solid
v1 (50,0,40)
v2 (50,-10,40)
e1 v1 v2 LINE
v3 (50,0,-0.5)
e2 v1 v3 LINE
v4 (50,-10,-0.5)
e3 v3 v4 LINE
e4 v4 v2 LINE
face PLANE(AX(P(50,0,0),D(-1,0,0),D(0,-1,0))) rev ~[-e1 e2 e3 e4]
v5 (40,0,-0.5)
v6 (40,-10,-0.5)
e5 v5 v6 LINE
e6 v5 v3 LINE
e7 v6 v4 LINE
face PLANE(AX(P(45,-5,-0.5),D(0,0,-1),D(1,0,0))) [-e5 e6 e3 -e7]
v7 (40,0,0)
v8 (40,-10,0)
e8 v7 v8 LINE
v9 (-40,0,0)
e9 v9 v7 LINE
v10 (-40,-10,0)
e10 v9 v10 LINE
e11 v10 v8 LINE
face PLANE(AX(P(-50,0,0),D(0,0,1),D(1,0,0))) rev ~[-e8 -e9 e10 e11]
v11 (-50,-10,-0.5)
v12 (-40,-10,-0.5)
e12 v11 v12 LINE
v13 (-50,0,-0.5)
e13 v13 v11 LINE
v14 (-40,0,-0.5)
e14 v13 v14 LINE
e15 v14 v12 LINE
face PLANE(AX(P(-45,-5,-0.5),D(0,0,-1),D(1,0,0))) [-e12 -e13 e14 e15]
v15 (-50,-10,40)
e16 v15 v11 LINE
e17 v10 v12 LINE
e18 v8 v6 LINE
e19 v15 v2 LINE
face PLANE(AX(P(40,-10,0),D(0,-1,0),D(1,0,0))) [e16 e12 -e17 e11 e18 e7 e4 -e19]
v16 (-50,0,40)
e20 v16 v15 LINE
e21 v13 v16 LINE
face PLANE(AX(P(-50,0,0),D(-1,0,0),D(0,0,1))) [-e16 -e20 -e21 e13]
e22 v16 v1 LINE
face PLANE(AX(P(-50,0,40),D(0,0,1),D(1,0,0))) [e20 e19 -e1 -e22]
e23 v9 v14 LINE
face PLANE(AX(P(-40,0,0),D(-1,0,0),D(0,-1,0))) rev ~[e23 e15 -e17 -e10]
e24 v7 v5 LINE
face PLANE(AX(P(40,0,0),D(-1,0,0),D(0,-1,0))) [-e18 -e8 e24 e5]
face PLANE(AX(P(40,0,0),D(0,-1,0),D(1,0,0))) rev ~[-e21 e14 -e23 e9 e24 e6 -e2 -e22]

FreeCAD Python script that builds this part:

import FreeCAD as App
import Part
import Sketcher
Q = App.Units.Quantity

doc = App.newDocument("Part")
params = doc.addObject("Spreadsheet::Sheet", "Params")
for row, (alias, value) in enumerate([
    ("sketch1_width", "100 mm"),
    ("sketch1_height", "40 mm"),
    ("pad1_length", "10 mm"),
    ("sketch2_width", "10 mm"),
    ("pad2_length", "0.5 mm"),
], start=1):
    params.set(f"A{row}", alias)
    params.set(f"B{row}", "=" + value)
    params.setAlias(f"B{row}", alias)

body = doc.addObject("PartDesign::Body", "Body")

# Sketch on XZ plane
sketch1 = body.newObject("Sketcher::SketchObject", "Sketch")
sketch1.AttachmentSupport = (doc.getObject("XZ_Plane"), [""])
sketch1.MapMode = "FlatFace"
sketch1.addGeometry([
    Part.LineSegment(App.Vector(-50, 40, 0), App.Vector(-50, 0, 0)),
    Part.LineSegment(App.Vector(-50, 0, 0), App.Vector(50, 0, 0)),
    Part.LineSegment(App.Vector(50, 0, 0), App.Vector(50, 40, 0)),
    Part.LineSegment(App.Vector(50, 40, 0), App.Vector(-50, 40, 0)),
], False)
sketch1.addConstraint([
    Sketcher.Constraint("Coincident", 0, 2, 1, 1),
    Sketcher.Constraint("Coincident", 1, 2, 2, 1),
    Sketcher.Constraint("Coincident", 2, 2, 3, 1),
    Sketcher.Constraint("Coincident", 3, 2, 0, 1),
    Sketcher.Constraint("Vertical", 0),
    Sketcher.Constraint("Horizontal", 1),
    Sketcher.Constraint("Vertical", 2),
    Sketcher.Constraint("Horizontal", 3),
    Sketcher.Constraint("Symmetric", 0, 2, 1, 2, -1, 1),
    Sketcher.Constraint("DistanceX", 1, 1, 1, 2, Q("100 mm")),
    Sketcher.Constraint("DistanceY", 0, 2, 0, 1, Q("40 mm")),
])
sketch1.setExpression("Constraints[9]", "Params.sketch1_width")
sketch1.setExpression("Constraints[10]", "Params.sketch1_height")
pad1 = body.newObject("PartDesign::Pad", "Pad")
pad1.Profile = sketch1
pad1.setExpression("Length", "Params.pad1_length")

# Sketch on XY plane
sketch2 = body.newObject("Sketcher::SketchObject", "Sketch001")
sketch2.AttachmentSupport = (doc.getObject("XY_Plane"), [""])
sketch2.MapMode = "FlatFace"
sketch2.addGeometry([
    Part.LineSegment(App.Vector(40, -10, 0), App.Vector(40, 0, 0)),  # 0
    Part.LineSegment(App.Vector(40, 0, 0), App.Vector(50, 0, 0)),  # 1
    Part.LineSegment(App.Vector(50, 0, 0), App.Vector(50, -10, 0)),  # 2
    Part.LineSegment(App.Vector(50, -10, 0), App.Vector(40, -10, 0)),  # 3
    Part.LineSegment(App.Vector(-50, -10, 0), App.Vector(-50, 0, 0)),  # 4
    Part.LineSegment(App.Vector(-50, 0, 0), App.Vector(-40, 0, 0)),  # 5
    Part.LineSegment(App.Vector(-40, 0, 0), App.Vector(-40, -10, 0)),  # 6
    Part.LineSegment(App.Vector(-40, -10, 0), App.Vector(-50, -10, 0)),  # 7
], False)
sketch2.addConstraint([
    Sketcher.Constraint("Coincident", 0, 2, 1, 1),
    Sketcher.Constraint("Coincident", 1, 2, 2, 1),
    Sketcher.Constraint("Coincident", 2, 2, 3, 1),
    Sketcher.Constraint("Coincident", 3, 2, 0, 1),
    Sketcher.Constraint("Coincident", 4, 2, 5, 1),
    Sketcher.Constraint("Coincident", 5, 2, 6, 1),
    Sketcher.Constraint("Coincident", 6, 2, 7, 1),
    Sketcher.Constraint("Coincident", 7, 2, 4, 1),
    Sketcher.Constraint("Vertical", 0),
    Sketcher.Constraint("Horizontal", 1),
    Sketcher.Constraint("Vertical", 2),
    Sketcher.Constraint("Horizontal", 3),
    Sketcher.Constraint("Vertical", 4),
    Sketcher.Constraint("Horizontal", 5),
    Sketcher.Constraint("Vertical", 6),
    Sketcher.Constraint("Horizontal", 7),
    Sketcher.Constraint("Symmetric", 1, 2, 4, 2, -1, 1),
    Sketcher.Constraint("Symmetric", 0, 2, 5, 2, -2),
    Sketcher.Constraint("Horizontal", 3, 2, 6, 2),
    Sketcher.Constraint("Equal", 7, 0),
    Sketcher.Constraint("DistanceX", 1, 1, 1, 2, Q("10 mm")),
    Sketcher.Constraint("DistanceX", -1, 1, 0, 2, Q("40 mm")),
])
sketch2.setExpression("Constraints[20]", "Params.sketch2_width")
pad2 = body.newObject("PartDesign::Pad", "Pad001")
pad2.Profile = sketch2
pad2.setExpression("Length", "Params.pad2_length")
pad2.Reversed = True

doc.recompute()
